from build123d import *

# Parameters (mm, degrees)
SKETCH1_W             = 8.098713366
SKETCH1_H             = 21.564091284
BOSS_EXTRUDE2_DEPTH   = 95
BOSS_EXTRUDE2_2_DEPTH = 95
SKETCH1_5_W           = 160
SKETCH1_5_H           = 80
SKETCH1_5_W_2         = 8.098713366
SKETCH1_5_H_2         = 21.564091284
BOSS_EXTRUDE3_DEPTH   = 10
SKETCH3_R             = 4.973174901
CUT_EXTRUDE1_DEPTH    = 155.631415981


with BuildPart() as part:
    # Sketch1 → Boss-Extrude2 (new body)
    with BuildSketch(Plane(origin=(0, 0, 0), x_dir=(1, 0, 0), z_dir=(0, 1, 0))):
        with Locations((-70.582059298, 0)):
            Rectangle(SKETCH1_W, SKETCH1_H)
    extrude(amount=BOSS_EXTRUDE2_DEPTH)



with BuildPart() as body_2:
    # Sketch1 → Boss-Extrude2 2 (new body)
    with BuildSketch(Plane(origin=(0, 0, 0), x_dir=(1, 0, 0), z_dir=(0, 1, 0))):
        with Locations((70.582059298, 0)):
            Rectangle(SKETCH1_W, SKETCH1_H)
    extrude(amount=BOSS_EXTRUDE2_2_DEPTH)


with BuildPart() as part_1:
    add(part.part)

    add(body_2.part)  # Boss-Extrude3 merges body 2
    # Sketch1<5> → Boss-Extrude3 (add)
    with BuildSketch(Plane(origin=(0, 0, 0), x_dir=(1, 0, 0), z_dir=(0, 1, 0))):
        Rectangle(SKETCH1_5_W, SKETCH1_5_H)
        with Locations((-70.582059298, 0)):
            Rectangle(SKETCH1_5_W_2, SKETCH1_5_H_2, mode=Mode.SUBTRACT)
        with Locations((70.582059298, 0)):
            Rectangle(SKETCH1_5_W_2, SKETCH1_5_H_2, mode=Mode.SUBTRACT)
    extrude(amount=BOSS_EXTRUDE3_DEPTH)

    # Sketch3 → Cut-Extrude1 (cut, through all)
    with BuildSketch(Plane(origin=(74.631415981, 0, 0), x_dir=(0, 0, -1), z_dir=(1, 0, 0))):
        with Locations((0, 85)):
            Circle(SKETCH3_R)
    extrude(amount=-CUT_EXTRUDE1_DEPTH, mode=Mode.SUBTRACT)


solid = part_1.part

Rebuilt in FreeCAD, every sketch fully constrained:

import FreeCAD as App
import Part
import Sketcher

doc = App.newDocument("Part")
params = doc.addObject("Spreadsheet::Sheet", "Params")
for row, (alias, value) in enumerate([
    ("pad1_length", "95 mm"),
    ("pad2_length", "95 mm"),
    ("sketch3_width", "160 mm"),
    ("sketch3_height", "80 mm"),
    ("pad3_length", "10 mm"),
], start=1):
    params.set(f"A{row}", alias)
    params.set(f"B{row}", "=" + value)
    params.setAlias(f"B{row}", alias)

body = doc.addObject("PartDesign::Body", "Body")

# Sketch on XZ plane
sketch1 = body.newObject("Sketcher::SketchObject", "Sketch")
sketch1.AttachmentSupport = (doc.getObject("XZ_Plane"), [""])
sketch1.MapMode = "FlatFace"
sketch1.addGeometry([
    Part.LineSegment(App.Vector(-75, -11, 0), App.Vector(-75, 11, 0)),
    Part.LineSegment(App.Vector(-75, 11, 0), App.Vector(-67, 11, 0)),
    Part.LineSegment(App.Vector(-67, 11, 0), App.Vector(-67, -11, 0)),
    Part.LineSegment(App.Vector(-67, -11, 0), App.Vector(-75, -11, 0)),
], False)
sketch1.addConstraint([
    Sketcher.Constraint("Coincident", 0, 2, 1, 1),
    Sketcher.Constraint("Coincident", 1, 2, 2, 1),
    Sketcher.Constraint("Coincident", 2, 2, 3, 1),
    Sketcher.Constraint("Coincident", 3, 2, 0, 1),
    Sketcher.Constraint("Vertical", 0),
    Sketcher.Constraint("Horizontal", 1),
    Sketcher.Constraint("Vertical", 2),
    Sketcher.Constraint("Horizontal", 3),
    Sketcher.Constraint("DistanceY", 0, 1, 0, 2, 21.564091),
    Sketcher.Constraint("DistanceX", 1, 1, 1, 2, 8.098713),
    Sketcher.Constraint("DistanceX", 0, 2, -1, 1, 74.631416),
    Sketcher.Constraint("DistanceY", -1, 1, 0, 2, 10.782046),
])
pad1 = body.newObject("PartDesign::Pad", "Pad")
pad1.Profile = sketch1
pad1.setExpression("Length", "Params.pad1_length")
pad1.Reversed = True
body2 = doc.addObject("PartDesign::Body", "Body001")

# Sketch on XZ plane
sketch2 = body2.newObject("Sketcher::SketchObject", "Sketch001")
sketch2.AttachmentSupport = (doc.getObject("XZ_Plane001"), [""])
sketch2.MapMode = "FlatFace"
sketch2.addGeometry([
    Part.LineSegment(App.Vector(67, -11, 0), App.Vector(67, 11, 0)),
    Part.LineSegment(App.Vector(67, 11, 0), App.Vector(75, 11, 0)),
    Part.LineSegment(App.Vector(75, 11, 0), App.Vector(75, -11, 0)),
    Part.LineSegment(App.Vector(75, -11, 0), App.Vector(67, -11, 0)),
], False)
sketch2.addConstraint([
    Sketcher.Constraint("Coincident", 0, 2, 1, 1),
    Sketcher.Constraint("Coincident", 1, 2, 2, 1),
    Sketcher.Constraint("Coincident", 2, 2, 3, 1),
    Sketcher.Constraint("Coincident", 3, 2, 0, 1),
    Sketcher.Constraint("Vertical", 0),
    Sketcher.Constraint("Horizontal", 1),
    Sketcher.Constraint("Vertical", 2),
    Sketcher.Constraint("Horizontal", 3),
    Sketcher.Constraint("DistanceY", 0, 1, 0, 2, 21.564091),
    Sketcher.Constraint("DistanceX", 1, 1, 1, 2, 8.098713),
    Sketcher.Constraint("DistanceX", -1, 1, 0, 2, 66.532703),
    Sketcher.Constraint("DistanceY", -1, 1, 0, 2, 10.782046),
])
pad2 = body2.newObject("PartDesign::Pad", "Pad001")
pad2.Profile = sketch2
pad2.setExpression("Length", "Params.pad2_length")
pad2.Reversed = True
body.AllowCompound = True
doc.recompute()

boolean = body.newObject("PartDesign::Boolean", "Boolean")
boolean.Type = "Fuse"
boolean.addObjects([body2])

# Sketch on XZ plane
sketch3 = body.newObject("Sketcher::SketchObject", "Sketch002")
sketch3.AttachmentSupport = (doc.getObject("XZ_Plane"), [""])
sketch3.MapMode = "FlatFace"
sketch3.addGeometry([
    Part.LineSegment(App.Vector(-80, -40, 0), App.Vector(-80, 40, 0)),  # 0
    Part.LineSegment(App.Vector(-80, 40, 0), App.Vector(80, 40, 0)),  # 1
    Part.LineSegment(App.Vector(80, 40, 0), App.Vector(80, -40, 0)),  # 2
    Part.LineSegment(App.Vector(80, -40, 0), App.Vector(-80, -40, 0)),  # 3
    Part.LineSegment(App.Vector(-67, 11, 0), App.Vector(-75, 11, 0)),  # 4
    Part.LineSegment(App.Vector(-75, 11, 0), App.Vector(-75, -11, 0)),  # 5
    Part.LineSegment(App.Vector(-75, -11, 0), App.Vector(-67, -11, 0)),  # 6
    Part.LineSegment(App.Vector(-67, -11, 0), App.Vector(-67, 11, 0)),  # 7
    Part.LineSegment(App.Vector(75, 11, 0), App.Vector(67, 11, 0)),  # 8
    Part.LineSegment(App.Vector(67, 11, 0), App.Vector(67, -11, 0)),  # 9
    Part.LineSegment(App.Vector(67, -11, 0), App.Vector(75, -11, 0)),  # 10
    Part.LineSegment(App.Vector(75, -11, 0), App.Vector(75, 11, 0)),  # 11
], False)
sketch3.addConstraint([
    Sketcher.Constraint("Coincident", 0, 2, 1, 1),
    Sketcher.Constraint("Coincident", 1, 2, 2, 1),
    Sketcher.Constraint("Coincident", 2, 2, 3, 1),
    Sketcher.Constraint("Coincident", 3, 2, 0, 1),
    Sketcher.Constraint("Coincident", 4, 2, 5, 1),
    Sketcher.Constraint("Coincident", 5, 2, 6, 1),
    Sketcher.Constraint("Coincident", 6, 2, 7, 1),
    Sketcher.Constraint("Coincident", 7, 2, 4, 1),
    Sketcher.Constraint("Coincident", 8, 2, 9, 1),
    Sketcher.Constraint("Coincident", 9, 2, 10, 1),
    Sketcher.Constraint("Coincident", 10, 2, 11, 1),
    Sketcher.Constraint("Coincident", 11, 2, 8, 1),
    Sketcher.Constraint("Vertical", 0),
    Sketcher.Constraint("Horizontal", 1),
    Sketcher.Constraint("Vertical", 2),
    Sketcher.Constraint("Horizontal", 3),
    Sketcher.Constraint("Horizontal", 4),
    Sketcher.Constraint("Vertical", 5),
    Sketcher.Constraint("Horizontal", 6),
    Sketcher.Constraint("Vertical", 7),
    Sketcher.Constraint("Horizontal", 8),
    Sketcher.Constraint("Vertical", 9),
    Sketcher.Constraint("Horizontal", 10),
    Sketcher.Constraint("Vertical", 11),
    Sketcher.Constraint("Symmetric", 0, 2, 2, 2, -1, 1),
    Sketcher.Constraint("Symmetric", 6, 2, 8, 2, -1, 1),
    Sketcher.Constraint("Symmetric", 4, 2, 10, 2, -1, 1),
    Sketcher.Constraint("Horizontal", 7, 2, 8, 2),
    Sketcher.Constraint("DistanceX", 1, 1, 1, 2, 160.0),
    Sketcher.Constraint("DistanceY", 0, 1, 0, 2, 80.0),
    Sketcher.Constraint("DistanceY", 5, 2, 5, 1, 21.564091),
    Sketcher.Constraint("DistanceX", 4, 2, 4, 1, 8.098713),
    Sketcher.Constraint("DistanceX", 4, 2, 8, 2, 141.164119),
])
sketch3.setExpression("Constraints[28]", "Params.sketch3_width")
sketch3.setExpression("Constraints[29]", "Params.sketch3_height")
pad3 = body.newObject("PartDesign::Pad", "Pad002")
pad3.Profile = sketch3
pad3.setExpression("Length", "Params.pad3_length")
pad3.Reversed = True

# Sketch on YZ plane
sketch4 = body.newObject("Sketcher::SketchObject", "Sketch003")
sketch4.AttachmentSupport = (doc.getObject("YZ_Plane"), [""])
sketch4.MapMode = "FlatFace"
sketch4.AttachmentOffset = App.Placement(App.Vector(0, 0, 74.631416), App.Rotation())
sketch4.addGeometry(Part.Circle(App.Vector(85, 0, 0), App.Vector(0, 0, 1), 5), False)
sketch4.addConstraint([
    Sketcher.Constraint("PointOnObject", 0, 3, -1),
    Sketcher.Constraint("DistanceX", -1, 1, 0, 3, 85.0),
    Sketcher.Constraint("Diameter", 0, 9.94635),
])
pocket1 = body.newObject("PartDesign::Pocket", "Pocket")
pocket1.Profile = sketch4
pocket1.Type = "ThroughAll"

doc.recompute()
